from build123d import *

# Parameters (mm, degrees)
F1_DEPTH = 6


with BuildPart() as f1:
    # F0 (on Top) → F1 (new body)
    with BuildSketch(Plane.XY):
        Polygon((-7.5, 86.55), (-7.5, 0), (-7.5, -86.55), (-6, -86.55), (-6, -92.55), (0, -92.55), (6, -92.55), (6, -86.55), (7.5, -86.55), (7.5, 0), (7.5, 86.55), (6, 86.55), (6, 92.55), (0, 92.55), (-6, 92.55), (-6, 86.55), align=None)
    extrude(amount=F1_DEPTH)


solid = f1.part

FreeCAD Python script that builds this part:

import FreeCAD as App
import Part
import Sketcher
from FreeCAD import Vector


def add_polygon(sketch, points):
    """Adds a closed chain of lines whose ends are joined by coincident constraints."""
    first, n = sketch.GeometryCount, len(points)
    for a, b in zip(points, points[1:] + points[:1]):
        sketch.addGeometry(Part.LineSegment(App.Vector(*a, 0), App.Vector(*b, 0)), False)
    for i in range(n):
        sketch.addConstraint(Sketcher.Constraint("Coincident", first + i, 2, first + (i + 1) % n, 1))

doc = App.newDocument("Part")
body = doc.addObject("PartDesign::Body", "Body")

# Sketch on XY plane
sketch1 = doc.addObject("Sketcher::SketchObject", "Sketch")
body.addObject(sketch1)
sketch1.AttachmentSupport = (doc.XY_Plane, [""])
sketch1.MapMode = "FlatFace"
add_polygon(sketch1, [(-7.5, 86.55), (-7.5, -86.55), (-6, -86.55), (-6, -92.55), (6, -92.55), (6, -86.55), (7.5, -86.55), (7.5, 86.55), (6, 86.55), (6, 92.55), (-6, 92.55), (-6, 86.55)])  # lines 0-11
sketch1.addConstraint([
    Sketcher.Constraint("Vertical", 0),
    Sketcher.Constraint("Horizontal", 1),
    Sketcher.Constraint("Vertical", 2),
    Sketcher.Constraint("Horizontal", 3),
    Sketcher.Constraint("Vertical", 4),
    Sketcher.Constraint("Horizontal", 5),
    Sketcher.Constraint("Vertical", 6),
    Sketcher.Constraint("Horizontal", 7),
    Sketcher.Constraint("Vertical", 8),
    Sketcher.Constraint("Horizontal", 9),
    Sketcher.Constraint("Vertical", 10),
    Sketcher.Constraint("Horizontal", 11),
    Sketcher.Constraint("Symmetric", 0, 2, 6, 2, -1, 1),
    Sketcher.Constraint("Symmetric", 2, 2, 8, 2, -1, 1),
    Sketcher.Constraint("Symmetric", 4, 2, 10, 2, -1, 1),
    Sketcher.Constraint("Symmetric", 1, 2, 4, 2, -2),
    Sketcher.Constraint("DistanceX", 3, 1, 3, 2, 12.0),
    Sketcher.Constraint("DistanceY", 2, 2, 2, 1, 6.0),
    Sketcher.Constraint("DistanceX", 1, 1, 1, 2, 1.5),
    Sketcher.Constraint("DistanceY", 0, 2, 0, 1, 173.1),
])
pad1 = doc.addObject("PartDesign::Pad", "Pad")
body.addObject(pad1)
pad1.Profile = sketch1
pad1.Length = 6

doc.recompute()
